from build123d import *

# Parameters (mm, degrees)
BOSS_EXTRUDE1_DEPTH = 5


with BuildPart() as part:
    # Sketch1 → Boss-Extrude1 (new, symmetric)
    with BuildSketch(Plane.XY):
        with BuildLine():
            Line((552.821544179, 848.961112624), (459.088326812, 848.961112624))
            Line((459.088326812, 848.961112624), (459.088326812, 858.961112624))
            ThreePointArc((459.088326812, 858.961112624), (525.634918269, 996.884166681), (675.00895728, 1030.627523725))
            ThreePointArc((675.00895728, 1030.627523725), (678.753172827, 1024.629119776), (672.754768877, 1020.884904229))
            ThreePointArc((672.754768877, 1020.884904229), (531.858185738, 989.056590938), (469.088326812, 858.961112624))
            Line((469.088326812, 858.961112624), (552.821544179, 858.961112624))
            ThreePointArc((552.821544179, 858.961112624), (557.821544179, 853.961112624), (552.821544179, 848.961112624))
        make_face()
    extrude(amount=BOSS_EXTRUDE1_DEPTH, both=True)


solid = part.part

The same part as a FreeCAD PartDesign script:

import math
import FreeCAD as App
import Part
import Sketcher

doc = App.newDocument("Part")
params = doc.addObject("Spreadsheet::Sheet", "Params")
for row, (alias, value) in enumerate([
    ("sketch1_radius", "5 mm"),
    ("pad1_length", "10 mm"),
], start=1):
    params.set(f"A{row}", alias)
    params.set(f"B{row}", "=" + value)
    params.setAlias(f"B{row}", alias)

body = doc.addObject("PartDesign::Body", "Body")

# Sketch on XY plane
sketch1 = body.newObject("Sketcher::SketchObject", "Sketch")
sketch1.AttachmentSupport = (doc.getObject("XY_Plane"), [""])
sketch1.MapMode = "FlatFace"
sketch1.addGeometry([
    Part.LineSegment(App.Vector(459, 849, 0), App.Vector(553, 849, 0)),  # 0
    Part.ArcOfCircle(Part.Circle(App.Vector(553, 854, 0), App.Vector(0, 0, 1), 5), math.radians(-90), math.radians(90)),  # 1
    Part.LineSegment(App.Vector(553, 859, 0), App.Vector(469, 859, 0)),  # 2
    Part.ArcOfCircle(Part.Circle(App.Vector(635, 859, 0), App.Vector(0, 0, 1), 166), math.radians(77), math.radians(180)),  # 3
    Part.ArcOfCircle(Part.Circle(App.Vector(674, 1026, 0), App.Vector(0, 0, 1), 5), math.radians(-103), math.radians(77)),  # 4
    Part.ArcOfCircle(Part.Circle(App.Vector(635, 859, 0), App.Vector(0, 0, 1), 176), math.radians(77), math.radians(180)),  # 5
    Part.LineSegment(App.Vector(459, 859, 0), App.Vector(459, 849, 0)),  # 6
], False)
sketch1.addConstraint([
    Sketcher.Constraint("Tangent", 0, 2, 1, 1),
    Sketcher.Constraint("Tangent", 1, 2, 2, 1),
    Sketcher.Constraint("Coincident", 2, 2, 3, 2),
    Sketcher.Constraint("Tangent", 3, 1, 4, 1),
    Sketcher.Constraint("Tangent", 4, 2, 5, 1),
    Sketcher.Constraint("Tangent", 5, 2, 6, 1),
    Sketcher.Constraint("Coincident", 6, 2, 0, 1),
    Sketcher.Constraint("Horizontal", 0),
    Sketcher.Constraint("Horizontal", 2),
    Sketcher.Constraint("Vertical", 6),
    Sketcher.Constraint("Coincident", 5, 3, 3, 3),
    Sketcher.Constraint("Equal", 1, 4),
    Sketcher.Constraint("Horizontal", 5, 3, 1, 2),
    Sketcher.Constraint("Radius", 1, 5.0),
    Sketcher.Constraint("Radius", 3, 166.201494),
    Sketcher.Constraint("DistanceY", 3, 3, 4, 3, 166.795101),
    Sketcher.Constraint("DistanceX", 0, 1, 0, 2, 93.733217),
    Sketcher.Constraint("DistanceX", -1, 1, 3, 3, 635.289821),
    Sketcher.Constraint("DistanceY", -1, 1, 1, 3, 853.961113),
])
sketch1.setExpression("Constraints[13]", "Params.sketch1_radius")
pad1 = body.newObject("PartDesign::Pad", "Pad")
pad1.Profile = sketch1
pad1.setExpression("Length", "Params.pad1_length")
pad1.Midplane = True

doc.recompute()
